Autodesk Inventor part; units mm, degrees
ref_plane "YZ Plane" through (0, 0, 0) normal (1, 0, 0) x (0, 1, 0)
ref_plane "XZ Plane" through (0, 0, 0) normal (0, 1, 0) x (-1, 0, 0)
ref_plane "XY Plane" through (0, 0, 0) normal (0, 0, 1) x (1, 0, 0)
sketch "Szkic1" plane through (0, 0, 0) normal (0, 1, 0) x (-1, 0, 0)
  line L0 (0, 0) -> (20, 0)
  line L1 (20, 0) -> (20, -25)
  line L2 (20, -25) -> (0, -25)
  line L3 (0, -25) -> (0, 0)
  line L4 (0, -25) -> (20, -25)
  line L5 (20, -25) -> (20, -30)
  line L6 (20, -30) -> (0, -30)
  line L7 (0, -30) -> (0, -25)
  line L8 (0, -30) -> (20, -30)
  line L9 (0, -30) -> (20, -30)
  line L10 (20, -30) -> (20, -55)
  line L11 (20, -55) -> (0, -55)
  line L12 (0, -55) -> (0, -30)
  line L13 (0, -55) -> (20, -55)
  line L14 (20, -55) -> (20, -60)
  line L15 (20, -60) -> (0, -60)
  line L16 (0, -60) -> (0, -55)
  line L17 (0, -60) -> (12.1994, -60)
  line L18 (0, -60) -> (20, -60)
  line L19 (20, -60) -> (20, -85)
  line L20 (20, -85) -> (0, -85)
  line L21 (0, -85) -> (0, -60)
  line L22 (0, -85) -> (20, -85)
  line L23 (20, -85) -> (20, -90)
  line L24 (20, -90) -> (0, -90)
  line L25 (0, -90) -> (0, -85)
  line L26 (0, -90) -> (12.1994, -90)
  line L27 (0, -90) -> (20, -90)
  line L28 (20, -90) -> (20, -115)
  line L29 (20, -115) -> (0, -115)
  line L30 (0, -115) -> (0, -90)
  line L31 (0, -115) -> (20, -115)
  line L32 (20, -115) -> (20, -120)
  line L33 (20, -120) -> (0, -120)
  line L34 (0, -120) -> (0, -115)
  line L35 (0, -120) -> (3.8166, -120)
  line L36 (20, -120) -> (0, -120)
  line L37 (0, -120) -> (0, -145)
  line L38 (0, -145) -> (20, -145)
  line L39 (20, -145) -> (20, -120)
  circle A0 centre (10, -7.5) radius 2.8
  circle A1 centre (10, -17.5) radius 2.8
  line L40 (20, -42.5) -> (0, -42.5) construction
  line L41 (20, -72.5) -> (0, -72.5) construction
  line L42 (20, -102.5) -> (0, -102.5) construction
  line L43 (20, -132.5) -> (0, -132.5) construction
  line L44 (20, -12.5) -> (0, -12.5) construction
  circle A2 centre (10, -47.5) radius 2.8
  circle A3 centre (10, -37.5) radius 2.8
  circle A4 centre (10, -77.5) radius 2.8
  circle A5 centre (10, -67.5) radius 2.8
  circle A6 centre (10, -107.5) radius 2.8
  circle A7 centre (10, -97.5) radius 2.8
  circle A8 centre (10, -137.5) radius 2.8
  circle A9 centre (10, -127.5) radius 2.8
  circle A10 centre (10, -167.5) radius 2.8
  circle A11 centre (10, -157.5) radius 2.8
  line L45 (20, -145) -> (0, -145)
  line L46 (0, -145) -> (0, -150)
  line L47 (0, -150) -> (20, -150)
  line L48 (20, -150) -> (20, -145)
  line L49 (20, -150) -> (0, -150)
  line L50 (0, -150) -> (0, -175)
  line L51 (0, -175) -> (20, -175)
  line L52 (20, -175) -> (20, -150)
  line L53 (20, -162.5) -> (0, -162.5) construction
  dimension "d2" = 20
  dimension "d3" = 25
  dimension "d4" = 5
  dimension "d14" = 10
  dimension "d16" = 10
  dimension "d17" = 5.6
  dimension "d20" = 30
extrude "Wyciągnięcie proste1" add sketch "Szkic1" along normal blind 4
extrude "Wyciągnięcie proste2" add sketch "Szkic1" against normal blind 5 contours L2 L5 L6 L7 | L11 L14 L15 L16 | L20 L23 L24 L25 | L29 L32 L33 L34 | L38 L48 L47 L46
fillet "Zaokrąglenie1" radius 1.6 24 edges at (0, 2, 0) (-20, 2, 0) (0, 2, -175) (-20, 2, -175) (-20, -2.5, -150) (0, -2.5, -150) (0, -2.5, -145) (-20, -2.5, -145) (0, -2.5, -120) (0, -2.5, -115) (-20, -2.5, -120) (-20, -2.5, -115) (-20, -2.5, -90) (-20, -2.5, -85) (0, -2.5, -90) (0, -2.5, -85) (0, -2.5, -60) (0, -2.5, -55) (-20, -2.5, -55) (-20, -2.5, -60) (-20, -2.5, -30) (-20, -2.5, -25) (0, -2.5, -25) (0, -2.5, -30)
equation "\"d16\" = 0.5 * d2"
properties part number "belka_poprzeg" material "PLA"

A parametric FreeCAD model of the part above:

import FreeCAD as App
import Part
import Sketcher


def edges_at(feature, points):
    """Names of the edges that pass closest to the given points."""
    edges = feature.Shape.Edges
    near = lambda p: min(range(len(edges)), key=lambda i: edges[i].distToShape(Part.Vertex(*p))[0])
    return sorted({f"Edge{near(p) + 1}" for p in points})

doc = App.newDocument("Part")
body = doc.addObject("PartDesign::Body", "Body")

# Sketch on XZ plane
sketch1 = body.newObject("Sketcher::SketchObject", "Sketch")
sketch1.AttachmentSupport = (doc.getObject("XZ_Plane"), [""])
sketch1.MapMode = "FlatFace"
sketch1.addGeometry([
    Part.LineSegment(App.Vector(-20, 0, 0), App.Vector(0, 0, 0)),  # 0
    Part.LineSegment(App.Vector(0, 0, 0), App.Vector(0, -175, 0)),  # 1
    Part.LineSegment(App.Vector(0, -175, 0), App.Vector(-20, -175, 0)),  # 2
    Part.LineSegment(App.Vector(-20, -175, 0), App.Vector(-20, 0, 0)),  # 3
    Part.Circle(App.Vector(-10, -17.5, 0), App.Vector(0, 0, 1), 2.8),  # 4
    Part.Circle(App.Vector(-10, -7.5, 0), App.Vector(0, 0, 1), 2.8),  # 5
    Part.Circle(App.Vector(-10, -37.5, 0), App.Vector(0, 0, 1), 2.8),  # 6
    Part.Circle(App.Vector(-10, -47.5, 0), App.Vector(0, 0, 1), 2.8),  # 7
    Part.Circle(App.Vector(-10, -77.5, 0), App.Vector(0, 0, 1), 2.8),  # 8
    Part.Circle(App.Vector(-10, -67.5, 0), App.Vector(0, 0, 1), 2.8),  # 9
    Part.Circle(App.Vector(-10, -107.5, 0), App.Vector(0, 0, 1), 2.8),  # 10
    Part.Circle(App.Vector(-10, -97.5, 0), App.Vector(0, 0, 1), 2.8),  # 11
    Part.Circle(App.Vector(-10, -137.5, 0), App.Vector(0, 0, 1), 2.8),  # 12
    Part.Circle(App.Vector(-10, -127.5, 0), App.Vector(0, 0, 1), 2.8),  # 13
    Part.Circle(App.Vector(-10, -157.5, 0), App.Vector(0, 0, 1), 2.8),  # 14
    Part.Circle(App.Vector(-10, -167.5, 0), App.Vector(0, 0, 1), 2.8),  # 15
], False)
sketch1.addConstraint([
    Sketcher.Constraint("Coincident", 0, 2, 1, 1),
    Sketcher.Constraint("Coincident", 1, 2, 2, 1),
    Sketcher.Constraint("Coincident", 2, 2, 3, 1),
    Sketcher.Constraint("Coincident", 3, 2, 0, 1),
    Sketcher.Constraint("Horizontal", 0),
    Sketcher.Constraint("Vertical", 1),
    Sketcher.Constraint("Horizontal", 2),
    Sketcher.Constraint("Vertical", 3),
    Sketcher.Constraint("Coincident", 0, 2, -1, 1),
    Sketcher.Constraint("Equal", 4, 5),
    Sketcher.Constraint("Equal", 5, 6),
    Sketcher.Constraint("Equal", 6, 7),
    Sketcher.Constraint("Equal", 7, 8),
    Sketcher.Constraint("Equal", 8, 9),
    Sketcher.Constraint("Equal", 9, 10),
    Sketcher.Constraint("Equal", 10, 11),
    Sketcher.Constraint("Equal", 11, 12),
    Sketcher.Constraint("Equal", 12, 13),
    Sketcher.Constraint("Equal", 13, 14),
    Sketcher.Constraint("Equal", 14, 15),
    Sketcher.Constraint("Vertical", 4, 3, 5, 3),
    Sketcher.Constraint("Vertical", 5, 3, 6, 3),
    Sketcher.Constraint("Vertical", 6, 3, 7, 3),
    Sketcher.Constraint("Vertical", 7, 3, 8, 3),
    Sketcher.Constraint("Vertical", 8, 3, 9, 3),
    Sketcher.Constraint("Vertical", 9, 3, 10, 3),
    Sketcher.Constraint("Vertical", 10, 3, 11, 3),
    Sketcher.Constraint("Vertical", 11, 3, 12, 3),
    Sketcher.Constraint("Vertical", 12, 3, 13, 3),
    Sketcher.Constraint("Vertical", 13, 3, 14, 3),
    Sketcher.Constraint("Vertical", 14, 3, 15, 3),
    Sketcher.Constraint("Diameter", 4, 5.6),
    Sketcher.Constraint("DistanceX", 0, 1, 0, 2, 20.0),
    Sketcher.Constraint("DistanceX", 4, 3, -1, 1, 10.0),
    Sketcher.Constraint("DistanceY", 4, 3, 5, 3, 10.0),
    Sketcher.Constraint("DistanceY", 6, 3, 4, 3, 20.0),
    Sketcher.Constraint("DistanceY", 7, 3, 6, 3, 10.0),
    Sketcher.Constraint("DistanceY", 8, 3, 7, 3, 30.0),
    Sketcher.Constraint("DistanceY", 8, 3, 9, 3, 10.0),
    Sketcher.Constraint("DistanceY", 10, 3, 8, 3, 30.0),
    Sketcher.Constraint("DistanceY", 10, 3, 11, 3, 10.0),
    Sketcher.Constraint("DistanceY", 12, 3, 10, 3, 30.0),
    Sketcher.Constraint("DistanceY", 12, 3, 13, 3, 10.0),
    Sketcher.Constraint("DistanceY", 14, 3, 12, 3, 20.0),
    Sketcher.Constraint("DistanceY", 15, 3, 14, 3, 10.0),
    Sketcher.Constraint("DistanceY", 1, 2, 1, 1, 175.0),
    Sketcher.Constraint("DistanceY", 4, 3, -1, 1, 17.5),
])
pad1 = body.newObject("PartDesign::Pad", "Pad")
pad1.Profile = sketch1
pad1.Length = 4
pad1.Reversed = True

# Sketch on XZ plane
sketch2 = body.newObject("Sketcher::SketchObject", "Sketch001")
sketch2.AttachmentSupport = (doc.getObject("XZ_Plane"), [""])
sketch2.MapMode = "FlatFace"
sketch2.addGeometry([
    Part.LineSegment(App.Vector(-20, -25, 0), App.Vector(0, -25, 0)),  # 0
    Part.LineSegment(App.Vector(0, -25, 0), App.Vector(0, -30, 0)),  # 1
    Part.LineSegment(App.Vector(0, -30, 0), App.Vector(-20, -30, 0)),  # 2
    Part.LineSegment(App.Vector(-20, -30, 0), App.Vector(-20, -25, 0)),  # 3
    Part.LineSegment(App.Vector(-20, -55, 0), App.Vector(0, -55, 0)),  # 4
    Part.LineSegment(App.Vector(0, -55, 0), App.Vector(0, -60, 0)),  # 5
    Part.LineSegment(App.Vector(0, -60, 0), App.Vector(-20, -60, 0)),  # 6
    Part.LineSegment(App.Vector(-20, -60, 0), App.Vector(-20, -55, 0)),  # 7
    Part.LineSegment(App.Vector(-20, -85, 0), App.Vector(0, -85, 0)),  # 8
    Part.LineSegment(App.Vector(0, -85, 0), App.Vector(0, -90, 0)),  # 9
    Part.LineSegment(App.Vector(0, -90, 0), App.Vector(-20, -90, 0)),  # 10
    Part.LineSegment(App.Vector(-20, -90, 0), App.Vector(-20, -85, 0)),  # 11
    Part.LineSegment(App.Vector(-20, -115, 0), App.Vector(0, -115, 0)),  # 12
    Part.LineSegment(App.Vector(0, -115, 0), App.Vector(0, -120, 0)),  # 13
    Part.LineSegment(App.Vector(0, -120, 0), App.Vector(-20, -120, 0)),  # 14
    Part.LineSegment(App.Vector(-20, -120, 0), App.Vector(-20, -115, 0)),  # 15
    Part.LineSegment(App.Vector(-20, -145, 0), App.Vector(0, -145, 0)),  # 16
    Part.LineSegment(App.Vector(0, -145, 0), App.Vector(0, -150, 0)),  # 17
    Part.LineSegment(App.Vector(0, -150, 0), App.Vector(-20, -150, 0)),  # 18
    Part.LineSegment(App.Vector(-20, -150, 0), App.Vector(-20, -145, 0)),  # 19
], False)
sketch2.addConstraint([
    Sketcher.Constraint("Coincident", 0, 2, 1, 1),
    Sketcher.Constraint("Coincident", 1, 2, 2, 1),
    Sketcher.Constraint("Coincident", 2, 2, 3, 1),
    Sketcher.Constraint("Coincident", 3, 2, 0, 1),
    Sketcher.Constraint("Coincident", 4, 2, 5, 1),
    Sketcher.Constraint("Coincident", 5, 2, 6, 1),
    Sketcher.Constraint("Coincident", 6, 2, 7, 1),
    Sketcher.Constraint("Coincident", 7, 2, 4, 1),
    Sketcher.Constraint("Coincident", 8, 2, 9, 1),
    Sketcher.Constraint("Coincident", 9, 2, 10, 1),
    Sketcher.Constraint("Coincident", 10, 2, 11, 1),
    Sketcher.Constraint("Coincident", 11, 2, 8, 1),
    Sketcher.Constraint("Coincident", 12, 2, 13, 1),
    Sketcher.Constraint("Coincident", 13, 2, 14, 1),
    Sketcher.Constraint("Coincident", 14, 2, 15, 1),
    Sketcher.Constraint("Coincident", 15, 2, 12, 1),
    Sketcher.Constraint("Coincident", 16, 2, 17, 1),
    Sketcher.Constraint("Coincident", 17, 2, 18, 1),
    Sketcher.Constraint("Coincident", 18, 2, 19, 1),
    Sketcher.Constraint("Coincident", 19, 2, 16, 1),
    Sketcher.Constraint("Horizontal", 0),
    Sketcher.Constraint("Vertical", 1),
    Sketcher.Constraint("Horizontal", 2),
    Sketcher.Constraint("Vertical", 3),
    Sketcher.Constraint("Horizontal", 4),
    Sketcher.Constraint("Vertical", 5),
    Sketcher.Constraint("Horizontal", 6),
    Sketcher.Constraint("Vertical", 7),
    Sketcher.Constraint("Horizontal", 8),
    Sketcher.Constraint("Vertical", 9),
    Sketcher.Constraint("Horizontal", 10),
    Sketcher.Constraint("Vertical", 11),
    Sketcher.Constraint("Horizontal", 12),
    Sketcher.Constraint("Vertical", 13),
    Sketcher.Constraint("Horizontal", 14),
    Sketcher.Constraint("Vertical", 15),
    Sketcher.Constraint("Horizontal", 16),
    Sketcher.Constraint("Vertical", 17),
    Sketcher.Constraint("Horizontal", 18),
    Sketcher.Constraint("Vertical", 19),
    Sketcher.Constraint("PointOnObject", 0, 2, -2),
    Sketcher.Constraint("PointOnObject", 4, 2, -2),
    Sketcher.Constraint("PointOnObject", 8, 2, -2),
    Sketcher.Constraint("PointOnObject", 12, 2, -2),
    Sketcher.Constraint("PointOnObject", 16, 2, -2),
    Sketcher.Constraint("Vertical", 3, 2, 6, 2),
    Sketcher.Constraint("Vertical", 7, 2, 10, 2),
    Sketcher.Constraint("Vertical", 11, 2, 14, 2),
    Sketcher.Constraint("Vertical", 15, 2, 18, 2),
    Sketcher.Constraint("Equal", 3, 5),
    Sketcher.Constraint("Equal", 7, 9),
    Sketcher.Constraint("Equal", 11, 13),
    Sketcher.Constraint("Equal", 15, 17),
    Sketcher.Constraint("DistanceX", 0, 1, 0, 2, 20.0),
    Sketcher.Constraint("DistanceY", 1, 2, 1, 1, 5.0),
    Sketcher.Constraint("DistanceY", 0, 2, -1, 1, 25.0),
    Sketcher.Constraint("DistanceY", 4, 2, 1, 2, 25.0),
    Sketcher.Constraint("DistanceY", 8, 2, 5, 2, 25.0),
    Sketcher.Constraint("DistanceY", 12, 2, 9, 2, 25.0),
    Sketcher.Constraint("DistanceY", 16, 2, 13, 2, 25.0),
])
pad2 = body.newObject("PartDesign::Pad", "Pad001")
pad2.Profile = sketch2
pad2.Length = 5
doc.recompute()

fillet = body.newObject("PartDesign::Fillet", "Fillet")
fillet.Base = (pad2, edges_at(pad2, [
    (0, 2, 0),
    (-20, 2, 0),
    (0, 2, -175),
    (-20, 2, -175),
    (-20, -2.5, -150),
    (0, -2.5, -150),
    (0, -2.5, -145),
    (-20, -2.5, -145),
    (0, -2.5, -120),
    (0, -2.5, -115),
    (-20, -2.5, -120),
    (-20, -2.5, -115),
    (-20, -2.5, -90),
    (-20, -2.5, -85),
    (0, -2.5, -90),
    (0, -2.5, -85),
    (0, -2.5, -60),
    (0, -2.5, -55),
    (-20, -2.5, -55),
    (-20, -2.5, -60),
    (-20, -2.5, -30),
    (-20, -2.5, -25),
    (0, -2.5, -25),
    (0, -2.5, -30),
]))
fillet.Radius = 1.6

doc.recompute()
